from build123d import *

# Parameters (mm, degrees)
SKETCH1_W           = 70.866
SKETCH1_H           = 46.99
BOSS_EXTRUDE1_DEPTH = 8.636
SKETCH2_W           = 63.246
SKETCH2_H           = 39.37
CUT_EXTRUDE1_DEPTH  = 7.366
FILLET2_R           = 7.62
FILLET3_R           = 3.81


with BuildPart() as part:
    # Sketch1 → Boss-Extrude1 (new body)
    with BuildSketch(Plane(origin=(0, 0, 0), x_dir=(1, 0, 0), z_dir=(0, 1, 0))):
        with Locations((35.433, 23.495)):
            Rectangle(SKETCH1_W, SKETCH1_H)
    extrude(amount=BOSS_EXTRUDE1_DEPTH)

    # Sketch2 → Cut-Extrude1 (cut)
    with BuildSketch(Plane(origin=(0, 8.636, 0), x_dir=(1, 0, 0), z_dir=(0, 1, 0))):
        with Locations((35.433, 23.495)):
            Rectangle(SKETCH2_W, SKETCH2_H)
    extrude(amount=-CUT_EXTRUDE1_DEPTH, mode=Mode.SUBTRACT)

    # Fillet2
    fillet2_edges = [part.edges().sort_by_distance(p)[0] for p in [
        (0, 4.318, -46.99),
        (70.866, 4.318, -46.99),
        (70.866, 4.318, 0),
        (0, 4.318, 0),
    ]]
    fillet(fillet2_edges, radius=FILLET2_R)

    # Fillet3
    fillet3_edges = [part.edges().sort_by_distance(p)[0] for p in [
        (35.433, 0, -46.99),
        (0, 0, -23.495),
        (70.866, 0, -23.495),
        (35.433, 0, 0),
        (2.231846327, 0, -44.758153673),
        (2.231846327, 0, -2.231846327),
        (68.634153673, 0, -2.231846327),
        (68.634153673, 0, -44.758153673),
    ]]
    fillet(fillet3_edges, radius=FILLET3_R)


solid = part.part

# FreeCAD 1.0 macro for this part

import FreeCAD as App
import Part
import Sketcher
Q = App.Units.Quantity


def edges_at(feature, points):
    """Names of the edges that pass closest to the given points."""
    edges = feature.Shape.Edges
    near = lambda p: min(range(len(edges)), key=lambda i: edges[i].distToShape(Part.Vertex(*p))[0])
    return sorted({f"Edge{near(p) + 1}" for p in points})

doc = App.newDocument("Part")
body = doc.addObject("PartDesign::Body", "Body")

sketch1 = body.newObject("Sketcher::SketchObject", "Sketch")
sketch1.AttachmentSupport = (doc.getObject("XZ_Plane"), [""])
sketch1.MapMode = "FlatFace"
sketch1.addGeometry(Part.LineSegment(App.Vector(0, -46.99, 0), App.Vector(0, 0, 0)), False)
sketch1.addGeometry(Part.LineSegment(App.Vector(0, 0, 0), App.Vector(70.866, 0, 0)), False)
sketch1.addGeometry(Part.LineSegment(App.Vector(70.866, 0, 0), App.Vector(70.866, -46.99, 0)), False)
sketch1.addGeometry(Part.LineSegment(App.Vector(70.866, -46.99, 0), App.Vector(0, -46.99, 0)), False)
sketch1.addConstraint(Sketcher.Constraint("Coincident", 0, 2, 1, 1))
sketch1.addConstraint(Sketcher.Constraint("Coincident", 1, 2, 2, 1))
sketch1.addConstraint(Sketcher.Constraint("Coincident", 2, 2, 3, 1))
sketch1.addConstraint(Sketcher.Constraint("Coincident", 3, 2, 0, 1))
sketch1.addConstraint(Sketcher.Constraint("Vertical", 0))
sketch1.addConstraint(Sketcher.Constraint("Horizontal", 1))
sketch1.addConstraint(Sketcher.Constraint("Vertical", 2))
sketch1.addConstraint(Sketcher.Constraint("Horizontal", 3))
sketch1.addConstraint(Sketcher.Constraint("Coincident", 0, 2, -1, 1))
sketch1.addConstraint(Sketcher.Constraint("DistanceX", 1, 1, 1, 2, Q("2.79 in")))
sketch1.addConstraint(Sketcher.Constraint("DistanceY", 0, 1, 0, 2, Q("1.85 in")))
pad1 = body.newObject("PartDesign::Pad", "Pad")
pad1.Profile = sketch1
pad1.Length = Q("0.34 in")
pad1.Reversed = True

sketch2 = body.newObject("Sketcher::SketchObject", "Sketch001")
sketch2.AttachmentSupport = (doc.getObject("XZ_Plane"), [""])
sketch2.MapMode = "FlatFace"
sketch2.AttachmentOffset = App.Placement(App.Vector(0, 0, -0.34 * 25.4), App.Rotation())
sketch2.addGeometry(Part.LineSegment(App.Vector(3.81, -43.18, 0), App.Vector(3.81, -3.81, 0)), False)
sketch2.addGeometry(Part.LineSegment(App.Vector(3.81, -3.81, 0), App.Vector(67.056, -3.81, 0)), False)
sketch2.addGeometry(Part.LineSegment(App.Vector(67.056, -3.81, 0), App.Vector(67.056, -43.18, 0)), False)
sketch2.addGeometry(Part.LineSegment(App.Vector(67.056, -43.18, 0), App.Vector(3.81, -43.18, 0)), False)
sketch2.addConstraint(Sketcher.Constraint("Coincident", 0, 2, 1, 1))
sketch2.addConstraint(Sketcher.Constraint("Coincident", 1, 2, 2, 1))
sketch2.addConstraint(Sketcher.Constraint("Coincident", 2, 2, 3, 1))
sketch2.addConstraint(Sketcher.Constraint("Coincident", 3, 2, 0, 1))
sketch2.addConstraint(Sketcher.Constraint("Vertical", 0))
sketch2.addConstraint(Sketcher.Constraint("Horizontal", 1))
sketch2.addConstraint(Sketcher.Constraint("Vertical", 2))
sketch2.addConstraint(Sketcher.Constraint("Horizontal", 3))
sketch2.addConstraint(Sketcher.Constraint("DistanceX", 1, 1, 1, 2, Q("2.49 in")))
sketch2.addConstraint(Sketcher.Constraint("DistanceY", 0, 1, 0, 2, Q("1.55 in")))
sketch2.addConstraint(Sketcher.Constraint("DistanceY", 2, 2, -1, 1, Q("1.7 in")))
sketch2.addConstraint(Sketcher.Constraint("DistanceX", -1, 1, 0, 2, Q("0.15 in")))
pocket1 = body.newObject("PartDesign::Pocket", "Pocket")
pocket1.Profile = sketch2
pocket1.Length = Q("0.29 in")
pocket1.Reversed = True
doc.recompute()

fillet = body.newObject("PartDesign::Fillet", "Fillet")
fillet.Base = (pocket1, edges_at(pocket1, [
    (0, 4.318, -46.99),
    (70.866, 4.318, -46.99),
    (70.866, 4.318, 0),
    (0, 4.318, 0),
]))
fillet.Radius = Q("0.3 in")
doc.recompute()

fillet2 = body.newObject("PartDesign::Fillet", "Fillet001")
fillet2.Base = (fillet, edges_at(fillet, [
    (35.433, 0, -46.99),
    (0, 0, -23.495),
    (70.866, 0, -23.495),
    (35.433, 0, 0),
    (2.232, 0, -44.758),
    (2.232, 0, -2.232),
    (68.634, 0, -2.232),
    (68.634, 0, -44.758),
]))
fillet2.Radius = Q("0.15 in")

doc.recompute()
